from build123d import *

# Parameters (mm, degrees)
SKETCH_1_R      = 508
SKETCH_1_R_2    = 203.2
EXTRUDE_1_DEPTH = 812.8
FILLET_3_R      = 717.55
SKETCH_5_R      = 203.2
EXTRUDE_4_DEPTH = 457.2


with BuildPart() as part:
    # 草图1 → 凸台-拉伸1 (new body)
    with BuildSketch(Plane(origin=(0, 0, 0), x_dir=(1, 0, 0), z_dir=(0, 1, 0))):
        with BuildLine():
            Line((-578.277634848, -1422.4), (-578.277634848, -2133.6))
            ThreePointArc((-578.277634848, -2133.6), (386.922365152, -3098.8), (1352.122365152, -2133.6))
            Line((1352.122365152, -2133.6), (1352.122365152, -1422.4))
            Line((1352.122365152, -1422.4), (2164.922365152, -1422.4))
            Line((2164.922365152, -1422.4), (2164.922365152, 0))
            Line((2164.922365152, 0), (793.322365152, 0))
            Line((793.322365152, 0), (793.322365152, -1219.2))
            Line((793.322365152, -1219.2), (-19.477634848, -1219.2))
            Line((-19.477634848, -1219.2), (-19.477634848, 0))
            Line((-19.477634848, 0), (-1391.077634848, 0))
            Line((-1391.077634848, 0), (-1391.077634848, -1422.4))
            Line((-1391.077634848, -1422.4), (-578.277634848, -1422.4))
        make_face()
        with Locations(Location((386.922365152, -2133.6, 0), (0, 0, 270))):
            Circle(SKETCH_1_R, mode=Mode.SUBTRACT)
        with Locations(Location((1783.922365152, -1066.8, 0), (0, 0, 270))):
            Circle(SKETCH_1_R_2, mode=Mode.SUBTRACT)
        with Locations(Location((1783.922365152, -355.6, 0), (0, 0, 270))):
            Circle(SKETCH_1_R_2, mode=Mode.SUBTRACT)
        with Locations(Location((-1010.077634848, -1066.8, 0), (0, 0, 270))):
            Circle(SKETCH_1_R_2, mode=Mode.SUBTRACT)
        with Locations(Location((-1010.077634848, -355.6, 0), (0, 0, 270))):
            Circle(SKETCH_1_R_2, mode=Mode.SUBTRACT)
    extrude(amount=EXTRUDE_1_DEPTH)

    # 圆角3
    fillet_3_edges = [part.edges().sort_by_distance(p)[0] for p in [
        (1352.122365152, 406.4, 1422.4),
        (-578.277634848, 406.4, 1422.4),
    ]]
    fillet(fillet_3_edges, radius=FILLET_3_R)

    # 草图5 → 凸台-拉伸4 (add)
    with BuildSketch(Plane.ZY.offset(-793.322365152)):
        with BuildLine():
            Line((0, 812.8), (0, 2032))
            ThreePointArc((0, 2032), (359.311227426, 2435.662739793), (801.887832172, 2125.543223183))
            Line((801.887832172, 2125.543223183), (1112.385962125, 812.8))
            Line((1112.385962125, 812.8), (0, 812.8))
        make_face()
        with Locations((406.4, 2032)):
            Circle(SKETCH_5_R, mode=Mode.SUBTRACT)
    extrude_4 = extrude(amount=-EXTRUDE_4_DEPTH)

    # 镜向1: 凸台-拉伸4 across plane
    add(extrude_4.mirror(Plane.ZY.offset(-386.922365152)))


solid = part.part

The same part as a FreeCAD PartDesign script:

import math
import FreeCAD as App
import Part
import Sketcher

V = App.Vector
Q = App.Units.Quantity


def edges_at(feature, points):
    """Names of the edges that pass closest to the given points."""
    edges = feature.Shape.Edges
    near = lambda p: min(range(len(edges)), key=lambda i: edges[i].distToShape(Part.Vertex(*p))[0])
    return sorted({f"Edge{near(p) + 1}" for p in points})

doc = App.newDocument("Part")
params = doc.addObject("Spreadsheet::Sheet", "Params")
for row, (alias, value) in enumerate([
    ("sketch1_diameter", "40 in"),
    ("sketch1_diameter2", "16 in"),
    ("sketch1_radius", "38 in"),
    ("sketch1_width", "32 in"),
    ("sketch1_height", "28 in"),
    ("pad1_length", "32 in"),
    ("fillet_radius", "28.25 in"),
    ("sketch2_diameter", "16 in"),
    ("sketch2_radius", "16 in"),
    ("sketch2_width", "48 in"),
    ("pad2_length", "18 in"),
], start=1):
    params.set(f"A{row}", alias)
    params.set(f"B{row}", "=" + value)
    params.setAlias(f"B{row}", alias)

body = doc.addObject("PartDesign::Body", "Body")

sketch1 = doc.addObject("Sketcher::SketchObject", "Sketch")
body.addObject(sketch1)
sketch1.AttachmentSupport = (doc.XZ_Plane, [""])
sketch1.MapMode = "FlatFace"
sketch1.addGeometry([
    Part.LineSegment(V(-578.277635, 1422.4, 0), V(-578.277635, 2133.6, 0)),
    Part.ArcOfCircle(Part.Circle(V(386.922365, 2133.6, 0), V(0, 0, 1), 965.2), math.radians(0), math.radians(180)),
    Part.LineSegment(V(1352.122365, 2133.6, 0), V(1352.122365, 1422.4, 0)),
    Part.LineSegment(V(1352.122365, 1422.4, 0), V(2164.922365, 1422.4, 0)),
    Part.LineSegment(V(2164.922365, 1422.4, 0), V(2164.922365, 0, 0)),
    Part.LineSegment(V(2164.922365, 0, 0), V(793.322365, 0, 0)),
    Part.LineSegment(V(793.322365, 0, 0), V(793.322365, 1219.2, 0)),
    Part.LineSegment(V(793.322365, 1219.2, 0), V(-19.477635, 1219.2, 0)),
    Part.LineSegment(V(-19.477635, 1219.2, 0), V(-19.477635, 0, 0)),
    Part.LineSegment(V(-19.477635, 0, 0), V(-1391.077635, 0, 0)),
    Part.LineSegment(V(-1391.077635, 0, 0), V(-1391.077635, 1422.4, 0)),
    Part.LineSegment(V(-1391.077635, 1422.4, 0), V(-578.277635, 1422.4, 0)),
    Part.Circle(V(386.922365, 2133.6, 0), V(0, 0, 1), 508),
    Part.Circle(V(-1010.077635, 1066.8, 0), V(0, 0, 1), 203.2),
    Part.Circle(V(-1010.077635, 355.6, 0), V(0, 0, 1), 203.2),
    Part.Circle(V(1783.922365, 1066.8, 0), V(0, 0, 1), 203.2),
    Part.Circle(V(1783.922365, 355.6, 0), V(0, 0, 1), 203.2),
], False)
sketch1.addConstraint([
    Sketcher.Constraint("Tangent", 0, 2, 1, 2),
    Sketcher.Constraint("Tangent", 1, 1, 2, 1),
    Sketcher.Constraint("Coincident", 2, 2, 3, 1),
    Sketcher.Constraint("Coincident", 3, 2, 4, 1),
    Sketcher.Constraint("Coincident", 4, 2, 5, 1),
    Sketcher.Constraint("Coincident", 5, 2, 6, 1),
    Sketcher.Constraint("Coincident", 6, 2, 7, 1),
    Sketcher.Constraint("Coincident", 7, 2, 8, 1),
    Sketcher.Constraint("Coincident", 8, 2, 9, 1),
    Sketcher.Constraint("Coincident", 9, 2, 10, 1),
    Sketcher.Constraint("Coincident", 10, 2, 11, 1),
    Sketcher.Constraint("Coincident", 11, 2, 0, 1),
    Sketcher.Constraint("Vertical", 0),
    Sketcher.Constraint("Vertical", 2),
    Sketcher.Constraint("Horizontal", 3),
    Sketcher.Constraint("Vertical", 4),
    Sketcher.Constraint("Horizontal", 5),
    Sketcher.Constraint("Vertical", 6),
    Sketcher.Constraint("Horizontal", 7),
    Sketcher.Constraint("Vertical", 8),
    Sketcher.Constraint("Horizontal", 9),
    Sketcher.Constraint("Vertical", 10),
    Sketcher.Constraint("Horizontal", 11),
    Sketcher.Constraint("Coincident", 12, 3, 1, 3),
    Sketcher.Constraint("Equal", 13, 14),
    Sketcher.Constraint("Equal", 14, 15),
    Sketcher.Constraint("Equal", 15, 16),
    Sketcher.Constraint("PointOnObject", 4, 2, -1),
    Sketcher.Constraint("PointOnObject", 8, 2, -1),
    Sketcher.Constraint("Horizontal", 13, 3, 15, 3),
    Sketcher.Constraint("Horizontal", 14, 3, 16, 3),
    Sketcher.Constraint("Horizontal", 3, 2, 10, 2),
    Sketcher.Constraint("Vertical", 13, 3, 14, 3),
    Sketcher.Constraint("Vertical", 15, 3, 16, 3),
    Sketcher.Constraint("Equal", 3, 7),
    Sketcher.Constraint("Equal", 5, 9),
    Sketcher.Constraint("Equal", 7, 11),
    Sketcher.Constraint("Diameter", 12, Q("40 in")),
    Sketcher.Constraint("Diameter", 13, Q("16 in")),
    Sketcher.Constraint("Radius", 1, Q("38 in")),
    Sketcher.Constraint("DistanceX", 3, 1, 3, 2, Q("32 in")),
    Sketcher.Constraint("DistanceY", 0, 1, 0, 2, Q("28 in")),
    Sketcher.Constraint("DistanceY", 4, 2, 4, 1, Q("56 in")),
    Sketcher.Constraint("DistanceY", 6, 1, 6, 2, Q("48 in")),
    Sketcher.Constraint("DistanceY", -1, 1, 13, 3, Q("42 in")),
    Sketcher.Constraint("DistanceY", -1, 1, 14, 3, Q("14 in")),
    Sketcher.Constraint("DistanceX", 13, 3, 1, 3, Q("55 in")),
    Sketcher.Constraint("DistanceX", 1, 3, 15, 3, Q("55 in")),
    Sketcher.Constraint("DistanceX", -1, 1, 1, 3, 386.922365),
])
sketch1.setExpression("Constraints[37]", "Params.sketch1_diameter")
sketch1.setExpression("Constraints[38]", "Params.sketch1_diameter2")
sketch1.setExpression("Constraints[39]", "Params.sketch1_radius")
sketch1.setExpression("Constraints[40]", "Params.sketch1_width")
sketch1.setExpression("Constraints[41]", "Params.sketch1_height")
pad1 = doc.addObject("PartDesign::Pad", "Pad")
body.addObject(pad1)
pad1.Profile = sketch1
pad1.setExpression("Length", "Params.pad1_length")
pad1.Reversed = True
doc.recompute()

fillet = doc.addObject("PartDesign::Fillet", "Fillet")
body.addObject(fillet)
fillet.Base = (pad1, edges_at(pad1, [(1352.122, 406.4, 1422.4), (-578.278, 406.4, 1422.4)]))
fillet.setExpression("Radius", "Params.fillet_radius")

sketch2 = doc.addObject("Sketcher::SketchObject", "Sketch001")
body.addObject(sketch2)
sketch2.AttachmentSupport = (doc.YZ_Plane, [""])
sketch2.MapMode = "FlatFace"
sketch2.AttachmentOffset = App.Placement(V(0, 0, 793.322365), App.Rotation())
sketch2.addGeometry([
    Part.LineSegment(V(2032, 0, 0), V(812.8, 0, 0)),
    Part.LineSegment(V(812.8, 0, 0), V(812.8, 1112.385962, 0)),
    Part.LineSegment(V(812.8, 1112.385962, 0), V(2125.543223, 801.887832, 0)),
    Part.ArcOfCircle(Part.Circle(V(2032, 406.4, 0), V(0, 0, 1), 406.4), math.radians(-90), math.radians(76.69261)),
    Part.Circle(V(2032, 406.4, 0), V(0, 0, 1), 203.2),
], False)
sketch2.addConstraint([
    Sketcher.Constraint("Coincident", 0, 2, 1, 1),
    Sketcher.Constraint("Coincident", 1, 2, 2, 1),
    Sketcher.Constraint("Tangent", 2, 2, 3, 2),
    Sketcher.Constraint("Tangent", 3, 1, 0, 1),
    Sketcher.Constraint("Horizontal", 0),
    Sketcher.Constraint("Vertical", 1),
    Sketcher.Constraint("Coincident", 4, 3, 3, 3),
    Sketcher.Constraint("PointOnObject", 0, 2, -1),
    Sketcher.Constraint("Diameter", 4, Q("16 in")),
    Sketcher.Constraint("Radius", 3, Q("16 in")),
    Sketcher.Constraint("DistanceX", 0, 2, 0, 1, Q("48 in")),
    Sketcher.Constraint("DistanceX", -1, 1, 3, 3, Q("80 in")),
    Sketcher.Constraint("DistanceY", 1, 1, 1, 2, 1112.385962),
])
sketch2.setExpression("Constraints[8]", "Params.sketch2_diameter")
sketch2.setExpression("Constraints[9]", "Params.sketch2_radius")
sketch2.setExpression("Constraints[10]", "Params.sketch2_width")
pad2 = doc.addObject("PartDesign::Pad", "Pad001")
body.addObject(pad2)
pad2.Profile = sketch2
pad2.setExpression("Length", "Params.pad2_length")
doc.recompute()

datumplane = doc.addObject("PartDesign::Plane", "DatumPlane")
body.addObject(datumplane)
datumplane.AttachmentSupport = (doc.YZ_Plane, [""])
datumplane.MapMode = "FlatFace"
datumplane.AttachmentOffset = App.Placement(V(0, 0, 386.922365), App.Rotation())
mirrored = doc.addObject("PartDesign::Mirrored", "Mirrored")
body.addObject(mirrored)
mirrored.Originals = [pad2]
mirrored.MirrorPlane = (datumplane, [""])
body.Tip = mirrored

doc.recompute()
